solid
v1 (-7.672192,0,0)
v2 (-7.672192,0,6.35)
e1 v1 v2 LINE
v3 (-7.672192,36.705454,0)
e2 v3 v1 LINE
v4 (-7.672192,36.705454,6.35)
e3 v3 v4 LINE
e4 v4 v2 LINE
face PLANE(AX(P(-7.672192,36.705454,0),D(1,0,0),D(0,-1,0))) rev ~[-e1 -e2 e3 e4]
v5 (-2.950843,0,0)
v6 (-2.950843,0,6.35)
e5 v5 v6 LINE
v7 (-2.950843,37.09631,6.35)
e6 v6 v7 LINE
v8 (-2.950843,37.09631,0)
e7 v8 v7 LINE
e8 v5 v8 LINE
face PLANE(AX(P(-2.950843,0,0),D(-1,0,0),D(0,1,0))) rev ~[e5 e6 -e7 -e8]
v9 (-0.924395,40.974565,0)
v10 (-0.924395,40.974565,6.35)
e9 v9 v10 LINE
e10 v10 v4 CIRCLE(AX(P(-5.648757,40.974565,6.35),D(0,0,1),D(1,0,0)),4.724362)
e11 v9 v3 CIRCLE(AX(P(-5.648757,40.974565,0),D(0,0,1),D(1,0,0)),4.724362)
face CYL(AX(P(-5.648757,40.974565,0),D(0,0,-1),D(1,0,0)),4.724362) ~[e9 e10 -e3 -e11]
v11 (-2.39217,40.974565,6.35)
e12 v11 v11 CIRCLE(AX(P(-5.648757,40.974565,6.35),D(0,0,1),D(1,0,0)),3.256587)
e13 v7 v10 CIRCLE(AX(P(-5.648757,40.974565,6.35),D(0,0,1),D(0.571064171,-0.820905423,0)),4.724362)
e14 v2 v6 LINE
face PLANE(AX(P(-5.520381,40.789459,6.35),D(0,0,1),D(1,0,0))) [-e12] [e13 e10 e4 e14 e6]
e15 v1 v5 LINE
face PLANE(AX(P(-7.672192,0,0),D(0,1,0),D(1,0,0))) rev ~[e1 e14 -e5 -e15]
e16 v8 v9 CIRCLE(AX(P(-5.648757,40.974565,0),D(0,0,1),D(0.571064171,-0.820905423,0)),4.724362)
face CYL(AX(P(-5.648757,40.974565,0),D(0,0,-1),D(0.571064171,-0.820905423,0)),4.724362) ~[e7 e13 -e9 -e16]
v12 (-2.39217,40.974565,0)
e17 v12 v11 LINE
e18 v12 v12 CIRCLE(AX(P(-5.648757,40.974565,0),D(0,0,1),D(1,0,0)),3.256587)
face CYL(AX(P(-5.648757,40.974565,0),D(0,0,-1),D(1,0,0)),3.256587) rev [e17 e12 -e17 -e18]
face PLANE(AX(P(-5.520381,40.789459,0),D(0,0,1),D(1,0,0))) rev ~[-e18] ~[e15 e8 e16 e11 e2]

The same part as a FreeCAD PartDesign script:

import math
import FreeCAD as App
import Part
import Sketcher
from FreeCAD import Vector
Q = App.Units.Quantity

doc = App.newDocument("Part")
body = doc.addObject("PartDesign::Body", "Body")

sketch1 = body.newObject("Sketcher::SketchObject", "Sketch")
sketch1.AttachmentSupport = (doc.getObject("XY_Plane"), [""])
sketch1.MapMode = "FlatFace"
sketch1.addGeometry(Part.ArcOfCircle(Part.Circle(Vector(-5.6, 41, 0), Vector(0, 0, 1), 4.7), math.radians(0), math.radians(245)), False)
sketch1.addGeometry(Part.LineSegment(Vector(-7.7, 36.7, 0), Vector(-7.7, 0, 0)), False)
sketch1.addGeometry(Part.LineSegment(Vector(-7.7, 0, 0), Vector(-3, 0, 0)), False)
sketch1.addGeometry(Part.LineSegment(Vector(-3, 0, 0), Vector(-3, 37.1, 0)), False)
sketch1.addGeometry(Part.ArcOfCircle(Part.Circle(Vector(-5.6, 41, 0), Vector(0, 0, 1), 4.7), math.radians(-55), math.radians(0)), False)
sketch1.addGeometry(Part.Circle(Vector(-5.6, 41, 0), Vector(0, 0, 1), 3.3), False)
sketch1.addConstraint(Sketcher.Constraint("Coincident", 0, 2, 1, 1))
sketch1.addConstraint(Sketcher.Constraint("Coincident", 1, 2, 2, 1))
sketch1.addConstraint(Sketcher.Constraint("Coincident", 2, 2, 3, 1))
sketch1.addConstraint(Sketcher.Constraint("Coincident", 3, 2, 4, 1))
sketch1.addConstraint(Sketcher.Constraint("Tangent", 4, 2, 0, 1))
sketch1.addConstraint(Sketcher.Constraint("Vertical", 1))
sketch1.addConstraint(Sketcher.Constraint("Horizontal", 2))
sketch1.addConstraint(Sketcher.Constraint("Vertical", 3))
sketch1.addConstraint(Sketcher.Constraint("Coincident", 5, 3, 0, 3))
sketch1.addConstraint(Sketcher.Constraint("Equal", 0, 4))
sketch1.addConstraint(Sketcher.Constraint("PointOnObject", 1, 2, -1))
sketch1.addConstraint(Sketcher.Constraint("Horizontal", 5, 3, 4, 2))
sketch1.addConstraint(Sketcher.Constraint("Diameter", 5, Q("6.513173 mm")))
sketch1.addConstraint(Sketcher.Constraint("Radius", 0, Q("4.724362 mm")))
sketch1.addConstraint(Sketcher.Constraint("DistanceX", 2, 1, 2, 2, Q("4.721349 mm")))
sketch1.addConstraint(Sketcher.Constraint("DistanceY", 3, 1, 3, 2, Q("37.09631 mm")))
sketch1.addConstraint(Sketcher.Constraint("DistanceY", 1, 2, 1, 1, Q("36.705454 mm")))
sketch1.addConstraint(Sketcher.Constraint("DistanceX", 0, 3, -1, 1, Q("5.648757 mm")))
pad1 = body.newObject("PartDesign::Pad", "Pad")
pad1.Profile = sketch1
pad1.Length = Q("0.25 in")

doc.recompute()
